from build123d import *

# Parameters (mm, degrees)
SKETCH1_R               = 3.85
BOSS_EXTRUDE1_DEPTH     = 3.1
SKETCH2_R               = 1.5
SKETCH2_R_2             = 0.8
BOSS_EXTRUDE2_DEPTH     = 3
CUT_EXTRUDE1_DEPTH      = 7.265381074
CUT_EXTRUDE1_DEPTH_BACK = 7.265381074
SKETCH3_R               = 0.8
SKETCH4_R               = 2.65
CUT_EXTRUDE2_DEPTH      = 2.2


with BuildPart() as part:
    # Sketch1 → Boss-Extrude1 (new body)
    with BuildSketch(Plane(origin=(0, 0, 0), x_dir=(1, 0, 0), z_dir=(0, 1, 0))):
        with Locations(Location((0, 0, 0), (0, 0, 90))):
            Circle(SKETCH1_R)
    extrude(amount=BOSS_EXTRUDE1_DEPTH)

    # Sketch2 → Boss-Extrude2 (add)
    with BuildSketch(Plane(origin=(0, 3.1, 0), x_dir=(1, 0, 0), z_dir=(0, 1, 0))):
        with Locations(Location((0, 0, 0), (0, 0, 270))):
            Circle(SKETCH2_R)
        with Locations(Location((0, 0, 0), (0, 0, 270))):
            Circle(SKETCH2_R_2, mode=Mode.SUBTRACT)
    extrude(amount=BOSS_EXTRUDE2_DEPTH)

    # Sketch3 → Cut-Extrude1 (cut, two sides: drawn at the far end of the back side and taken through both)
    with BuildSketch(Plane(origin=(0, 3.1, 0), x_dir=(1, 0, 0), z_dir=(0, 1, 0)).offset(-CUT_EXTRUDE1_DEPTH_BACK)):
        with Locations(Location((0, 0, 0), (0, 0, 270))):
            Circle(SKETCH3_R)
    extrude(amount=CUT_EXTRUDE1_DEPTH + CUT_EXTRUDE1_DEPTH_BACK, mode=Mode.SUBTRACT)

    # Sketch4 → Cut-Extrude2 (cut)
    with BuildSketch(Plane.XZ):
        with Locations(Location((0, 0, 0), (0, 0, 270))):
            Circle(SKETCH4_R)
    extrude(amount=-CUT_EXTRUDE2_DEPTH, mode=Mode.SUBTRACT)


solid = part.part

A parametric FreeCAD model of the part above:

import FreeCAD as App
import Part
import Sketcher
from FreeCAD import Vector
Q = App.Units.Quantity

doc = App.newDocument("Part")
body = doc.addObject("PartDesign::Body", "Body")

# Sketch on XZ plane
sketch1 = doc.addObject("Sketcher::SketchObject", "Sketch")
body.addObject(sketch1)
sketch1.AttachmentSupport = (doc.XZ_Plane, [""])
sketch1.MapMode = "FlatFace"
sketch1.addGeometry(Part.Circle(Vector(0, 0, 0), Vector(0, 0, 1), 3.85), False)
sketch1.addConstraint([
    Sketcher.Constraint("Coincident", 0, 3, -1, 1),
    Sketcher.Constraint("Diameter", 0, Q("7.7 mm")),
])
pad1 = doc.addObject("PartDesign::Pad", "Pad")
body.addObject(pad1)
pad1.Profile = sketch1
pad1.Length = 3.1
pad1.Reversed = True

# Sketch on XZ plane
sketch2 = doc.addObject("Sketcher::SketchObject", "Sketch001")
body.addObject(sketch2)
sketch2.AttachmentSupport = (doc.XZ_Plane, [""])
sketch2.MapMode = "FlatFace"
sketch2.AttachmentOffset = App.Placement(Vector(0, 0, -3.1), App.Rotation())
sketch2.addGeometry([
    Part.Circle(Vector(0, 0, 0), Vector(0, 0, 1), 1.5),
    Part.Circle(Vector(0, 0, 0), Vector(0, 0, 1), 0.8),
], False)
sketch2.addConstraint([
    Sketcher.Constraint("Coincident", 0, 3, -1, 1),
    Sketcher.Constraint("Coincident", 1, 3, -1, 1),
    Sketcher.Constraint("Diameter", 0, Q("3 mm")),
    Sketcher.Constraint("Diameter", 1, Q("1.6 mm")),
])
pad2 = doc.addObject("PartDesign::Pad", "Pad001")
body.addObject(pad2)
pad2.Profile = sketch2
pad2.Length = 3
pad2.Reversed = True

# Sketch on XZ plane
sketch3 = doc.addObject("Sketcher::SketchObject", "Sketch002")
body.addObject(sketch3)
sketch3.AttachmentSupport = (doc.XZ_Plane, [""])
sketch3.MapMode = "FlatFace"
sketch3.AttachmentOffset = App.Placement(Vector(0, 0, -3.1), App.Rotation())
sketch3.addGeometry(Part.Circle(Vector(0, 0, 0), Vector(0, 0, 1), 0.8), False)
sketch3.addConstraint([
    Sketcher.Constraint("Coincident", 0, 3, -1, 1),
    Sketcher.Constraint("Diameter", 0, Q("1.6 mm")),
])
pocket1 = doc.addObject("PartDesign::Pocket", "Pocket")
body.addObject(pocket1)
pocket1.Profile = sketch3
pocket1.Type = "ThroughAll"
pocket1.Midplane = True

# Sketch on XZ plane
sketch4 = doc.addObject("Sketcher::SketchObject", "Sketch003")
body.addObject(sketch4)
sketch4.AttachmentSupport = (doc.XZ_Plane, [""])
sketch4.MapMode = "FlatFace"
sketch4.addGeometry(Part.Circle(Vector(0, 0, 0), Vector(0, 0, 1), 2.65), False)
sketch4.addConstraint([
    Sketcher.Constraint("Coincident", 0, 3, -1, 1),
    Sketcher.Constraint("Diameter", 0, Q("5.3 mm")),
])
pocket2 = doc.addObject("PartDesign::Pocket", "Pocket001")
body.addObject(pocket2)
pocket2.Profile = sketch4
pocket2.Length = 2.2

doc.recompute()
